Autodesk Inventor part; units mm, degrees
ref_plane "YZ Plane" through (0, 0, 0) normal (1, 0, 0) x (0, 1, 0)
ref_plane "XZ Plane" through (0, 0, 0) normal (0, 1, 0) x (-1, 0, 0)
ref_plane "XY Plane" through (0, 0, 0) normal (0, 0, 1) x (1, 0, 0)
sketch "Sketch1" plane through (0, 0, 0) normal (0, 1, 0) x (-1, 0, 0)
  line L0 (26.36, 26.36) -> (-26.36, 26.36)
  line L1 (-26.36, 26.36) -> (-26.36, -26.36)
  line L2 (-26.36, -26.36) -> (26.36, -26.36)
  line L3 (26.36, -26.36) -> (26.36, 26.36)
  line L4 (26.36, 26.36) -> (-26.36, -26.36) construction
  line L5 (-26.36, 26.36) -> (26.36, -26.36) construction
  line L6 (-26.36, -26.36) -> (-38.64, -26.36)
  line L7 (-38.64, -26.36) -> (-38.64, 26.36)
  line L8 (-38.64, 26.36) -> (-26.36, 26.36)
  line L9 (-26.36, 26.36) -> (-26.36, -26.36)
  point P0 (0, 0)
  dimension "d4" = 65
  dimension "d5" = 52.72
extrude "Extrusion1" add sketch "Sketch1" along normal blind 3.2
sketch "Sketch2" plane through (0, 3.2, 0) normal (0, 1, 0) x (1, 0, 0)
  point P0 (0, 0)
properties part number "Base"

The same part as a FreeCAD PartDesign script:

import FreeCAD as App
import Part
import Sketcher
Q = App.Units.Quantity


def add_polygon(sketch, points):
    """Adds a closed chain of lines whose ends are joined by coincident constraints."""
    first, n = sketch.GeometryCount, len(points)
    for a, b in zip(points, points[1:] + points[:1]):
        sketch.addGeometry(Part.LineSegment(App.Vector(*a, 0), App.Vector(*b, 0)), False)
    for i in range(n):
        sketch.addConstraint(Sketcher.Constraint("Coincident", first + i, 2, first + (i + 1) % n, 1))

doc = App.newDocument("Part")
body = doc.addObject("PartDesign::Body", "Body")

# Sketch on XZ plane
sketch1 = body.newObject("Sketcher::SketchObject", "Sketch")
sketch1.AttachmentSupport = (doc.getObject("XZ_Plane"), [""])
sketch1.MapMode = "FlatFace"
add_polygon(sketch1, [(-26, -26), (-26, 26), (39, 26), (39, -26)])  # lines 0-3
sketch1.addConstraint(Sketcher.Constraint("Vertical", 0))
sketch1.addConstraint(Sketcher.Constraint("Horizontal", 1))
sketch1.addConstraint(Sketcher.Constraint("Vertical", 2))
sketch1.addConstraint(Sketcher.Constraint("Horizontal", 3))
sketch1.addConstraint(Sketcher.Constraint("DistanceX", 1, 1, 1, 2, Q("65 mm")))
sketch1.addConstraint(Sketcher.Constraint("DistanceY", 0, 1, 0, 2, Q("52.72 mm")))
sketch1.addConstraint(Sketcher.Constraint("DistanceX", 0, 2, -1, 1, Q("26.36 mm")))
sketch1.addConstraint(Sketcher.Constraint("DistanceY", -1, 1, 0, 2, Q("26.36 mm")))
pad1 = body.newObject("PartDesign::Pad", "Pad")
pad1.Profile = sketch1
pad1.Length = 3.2
pad1.Reversed = True

doc.recompute()
